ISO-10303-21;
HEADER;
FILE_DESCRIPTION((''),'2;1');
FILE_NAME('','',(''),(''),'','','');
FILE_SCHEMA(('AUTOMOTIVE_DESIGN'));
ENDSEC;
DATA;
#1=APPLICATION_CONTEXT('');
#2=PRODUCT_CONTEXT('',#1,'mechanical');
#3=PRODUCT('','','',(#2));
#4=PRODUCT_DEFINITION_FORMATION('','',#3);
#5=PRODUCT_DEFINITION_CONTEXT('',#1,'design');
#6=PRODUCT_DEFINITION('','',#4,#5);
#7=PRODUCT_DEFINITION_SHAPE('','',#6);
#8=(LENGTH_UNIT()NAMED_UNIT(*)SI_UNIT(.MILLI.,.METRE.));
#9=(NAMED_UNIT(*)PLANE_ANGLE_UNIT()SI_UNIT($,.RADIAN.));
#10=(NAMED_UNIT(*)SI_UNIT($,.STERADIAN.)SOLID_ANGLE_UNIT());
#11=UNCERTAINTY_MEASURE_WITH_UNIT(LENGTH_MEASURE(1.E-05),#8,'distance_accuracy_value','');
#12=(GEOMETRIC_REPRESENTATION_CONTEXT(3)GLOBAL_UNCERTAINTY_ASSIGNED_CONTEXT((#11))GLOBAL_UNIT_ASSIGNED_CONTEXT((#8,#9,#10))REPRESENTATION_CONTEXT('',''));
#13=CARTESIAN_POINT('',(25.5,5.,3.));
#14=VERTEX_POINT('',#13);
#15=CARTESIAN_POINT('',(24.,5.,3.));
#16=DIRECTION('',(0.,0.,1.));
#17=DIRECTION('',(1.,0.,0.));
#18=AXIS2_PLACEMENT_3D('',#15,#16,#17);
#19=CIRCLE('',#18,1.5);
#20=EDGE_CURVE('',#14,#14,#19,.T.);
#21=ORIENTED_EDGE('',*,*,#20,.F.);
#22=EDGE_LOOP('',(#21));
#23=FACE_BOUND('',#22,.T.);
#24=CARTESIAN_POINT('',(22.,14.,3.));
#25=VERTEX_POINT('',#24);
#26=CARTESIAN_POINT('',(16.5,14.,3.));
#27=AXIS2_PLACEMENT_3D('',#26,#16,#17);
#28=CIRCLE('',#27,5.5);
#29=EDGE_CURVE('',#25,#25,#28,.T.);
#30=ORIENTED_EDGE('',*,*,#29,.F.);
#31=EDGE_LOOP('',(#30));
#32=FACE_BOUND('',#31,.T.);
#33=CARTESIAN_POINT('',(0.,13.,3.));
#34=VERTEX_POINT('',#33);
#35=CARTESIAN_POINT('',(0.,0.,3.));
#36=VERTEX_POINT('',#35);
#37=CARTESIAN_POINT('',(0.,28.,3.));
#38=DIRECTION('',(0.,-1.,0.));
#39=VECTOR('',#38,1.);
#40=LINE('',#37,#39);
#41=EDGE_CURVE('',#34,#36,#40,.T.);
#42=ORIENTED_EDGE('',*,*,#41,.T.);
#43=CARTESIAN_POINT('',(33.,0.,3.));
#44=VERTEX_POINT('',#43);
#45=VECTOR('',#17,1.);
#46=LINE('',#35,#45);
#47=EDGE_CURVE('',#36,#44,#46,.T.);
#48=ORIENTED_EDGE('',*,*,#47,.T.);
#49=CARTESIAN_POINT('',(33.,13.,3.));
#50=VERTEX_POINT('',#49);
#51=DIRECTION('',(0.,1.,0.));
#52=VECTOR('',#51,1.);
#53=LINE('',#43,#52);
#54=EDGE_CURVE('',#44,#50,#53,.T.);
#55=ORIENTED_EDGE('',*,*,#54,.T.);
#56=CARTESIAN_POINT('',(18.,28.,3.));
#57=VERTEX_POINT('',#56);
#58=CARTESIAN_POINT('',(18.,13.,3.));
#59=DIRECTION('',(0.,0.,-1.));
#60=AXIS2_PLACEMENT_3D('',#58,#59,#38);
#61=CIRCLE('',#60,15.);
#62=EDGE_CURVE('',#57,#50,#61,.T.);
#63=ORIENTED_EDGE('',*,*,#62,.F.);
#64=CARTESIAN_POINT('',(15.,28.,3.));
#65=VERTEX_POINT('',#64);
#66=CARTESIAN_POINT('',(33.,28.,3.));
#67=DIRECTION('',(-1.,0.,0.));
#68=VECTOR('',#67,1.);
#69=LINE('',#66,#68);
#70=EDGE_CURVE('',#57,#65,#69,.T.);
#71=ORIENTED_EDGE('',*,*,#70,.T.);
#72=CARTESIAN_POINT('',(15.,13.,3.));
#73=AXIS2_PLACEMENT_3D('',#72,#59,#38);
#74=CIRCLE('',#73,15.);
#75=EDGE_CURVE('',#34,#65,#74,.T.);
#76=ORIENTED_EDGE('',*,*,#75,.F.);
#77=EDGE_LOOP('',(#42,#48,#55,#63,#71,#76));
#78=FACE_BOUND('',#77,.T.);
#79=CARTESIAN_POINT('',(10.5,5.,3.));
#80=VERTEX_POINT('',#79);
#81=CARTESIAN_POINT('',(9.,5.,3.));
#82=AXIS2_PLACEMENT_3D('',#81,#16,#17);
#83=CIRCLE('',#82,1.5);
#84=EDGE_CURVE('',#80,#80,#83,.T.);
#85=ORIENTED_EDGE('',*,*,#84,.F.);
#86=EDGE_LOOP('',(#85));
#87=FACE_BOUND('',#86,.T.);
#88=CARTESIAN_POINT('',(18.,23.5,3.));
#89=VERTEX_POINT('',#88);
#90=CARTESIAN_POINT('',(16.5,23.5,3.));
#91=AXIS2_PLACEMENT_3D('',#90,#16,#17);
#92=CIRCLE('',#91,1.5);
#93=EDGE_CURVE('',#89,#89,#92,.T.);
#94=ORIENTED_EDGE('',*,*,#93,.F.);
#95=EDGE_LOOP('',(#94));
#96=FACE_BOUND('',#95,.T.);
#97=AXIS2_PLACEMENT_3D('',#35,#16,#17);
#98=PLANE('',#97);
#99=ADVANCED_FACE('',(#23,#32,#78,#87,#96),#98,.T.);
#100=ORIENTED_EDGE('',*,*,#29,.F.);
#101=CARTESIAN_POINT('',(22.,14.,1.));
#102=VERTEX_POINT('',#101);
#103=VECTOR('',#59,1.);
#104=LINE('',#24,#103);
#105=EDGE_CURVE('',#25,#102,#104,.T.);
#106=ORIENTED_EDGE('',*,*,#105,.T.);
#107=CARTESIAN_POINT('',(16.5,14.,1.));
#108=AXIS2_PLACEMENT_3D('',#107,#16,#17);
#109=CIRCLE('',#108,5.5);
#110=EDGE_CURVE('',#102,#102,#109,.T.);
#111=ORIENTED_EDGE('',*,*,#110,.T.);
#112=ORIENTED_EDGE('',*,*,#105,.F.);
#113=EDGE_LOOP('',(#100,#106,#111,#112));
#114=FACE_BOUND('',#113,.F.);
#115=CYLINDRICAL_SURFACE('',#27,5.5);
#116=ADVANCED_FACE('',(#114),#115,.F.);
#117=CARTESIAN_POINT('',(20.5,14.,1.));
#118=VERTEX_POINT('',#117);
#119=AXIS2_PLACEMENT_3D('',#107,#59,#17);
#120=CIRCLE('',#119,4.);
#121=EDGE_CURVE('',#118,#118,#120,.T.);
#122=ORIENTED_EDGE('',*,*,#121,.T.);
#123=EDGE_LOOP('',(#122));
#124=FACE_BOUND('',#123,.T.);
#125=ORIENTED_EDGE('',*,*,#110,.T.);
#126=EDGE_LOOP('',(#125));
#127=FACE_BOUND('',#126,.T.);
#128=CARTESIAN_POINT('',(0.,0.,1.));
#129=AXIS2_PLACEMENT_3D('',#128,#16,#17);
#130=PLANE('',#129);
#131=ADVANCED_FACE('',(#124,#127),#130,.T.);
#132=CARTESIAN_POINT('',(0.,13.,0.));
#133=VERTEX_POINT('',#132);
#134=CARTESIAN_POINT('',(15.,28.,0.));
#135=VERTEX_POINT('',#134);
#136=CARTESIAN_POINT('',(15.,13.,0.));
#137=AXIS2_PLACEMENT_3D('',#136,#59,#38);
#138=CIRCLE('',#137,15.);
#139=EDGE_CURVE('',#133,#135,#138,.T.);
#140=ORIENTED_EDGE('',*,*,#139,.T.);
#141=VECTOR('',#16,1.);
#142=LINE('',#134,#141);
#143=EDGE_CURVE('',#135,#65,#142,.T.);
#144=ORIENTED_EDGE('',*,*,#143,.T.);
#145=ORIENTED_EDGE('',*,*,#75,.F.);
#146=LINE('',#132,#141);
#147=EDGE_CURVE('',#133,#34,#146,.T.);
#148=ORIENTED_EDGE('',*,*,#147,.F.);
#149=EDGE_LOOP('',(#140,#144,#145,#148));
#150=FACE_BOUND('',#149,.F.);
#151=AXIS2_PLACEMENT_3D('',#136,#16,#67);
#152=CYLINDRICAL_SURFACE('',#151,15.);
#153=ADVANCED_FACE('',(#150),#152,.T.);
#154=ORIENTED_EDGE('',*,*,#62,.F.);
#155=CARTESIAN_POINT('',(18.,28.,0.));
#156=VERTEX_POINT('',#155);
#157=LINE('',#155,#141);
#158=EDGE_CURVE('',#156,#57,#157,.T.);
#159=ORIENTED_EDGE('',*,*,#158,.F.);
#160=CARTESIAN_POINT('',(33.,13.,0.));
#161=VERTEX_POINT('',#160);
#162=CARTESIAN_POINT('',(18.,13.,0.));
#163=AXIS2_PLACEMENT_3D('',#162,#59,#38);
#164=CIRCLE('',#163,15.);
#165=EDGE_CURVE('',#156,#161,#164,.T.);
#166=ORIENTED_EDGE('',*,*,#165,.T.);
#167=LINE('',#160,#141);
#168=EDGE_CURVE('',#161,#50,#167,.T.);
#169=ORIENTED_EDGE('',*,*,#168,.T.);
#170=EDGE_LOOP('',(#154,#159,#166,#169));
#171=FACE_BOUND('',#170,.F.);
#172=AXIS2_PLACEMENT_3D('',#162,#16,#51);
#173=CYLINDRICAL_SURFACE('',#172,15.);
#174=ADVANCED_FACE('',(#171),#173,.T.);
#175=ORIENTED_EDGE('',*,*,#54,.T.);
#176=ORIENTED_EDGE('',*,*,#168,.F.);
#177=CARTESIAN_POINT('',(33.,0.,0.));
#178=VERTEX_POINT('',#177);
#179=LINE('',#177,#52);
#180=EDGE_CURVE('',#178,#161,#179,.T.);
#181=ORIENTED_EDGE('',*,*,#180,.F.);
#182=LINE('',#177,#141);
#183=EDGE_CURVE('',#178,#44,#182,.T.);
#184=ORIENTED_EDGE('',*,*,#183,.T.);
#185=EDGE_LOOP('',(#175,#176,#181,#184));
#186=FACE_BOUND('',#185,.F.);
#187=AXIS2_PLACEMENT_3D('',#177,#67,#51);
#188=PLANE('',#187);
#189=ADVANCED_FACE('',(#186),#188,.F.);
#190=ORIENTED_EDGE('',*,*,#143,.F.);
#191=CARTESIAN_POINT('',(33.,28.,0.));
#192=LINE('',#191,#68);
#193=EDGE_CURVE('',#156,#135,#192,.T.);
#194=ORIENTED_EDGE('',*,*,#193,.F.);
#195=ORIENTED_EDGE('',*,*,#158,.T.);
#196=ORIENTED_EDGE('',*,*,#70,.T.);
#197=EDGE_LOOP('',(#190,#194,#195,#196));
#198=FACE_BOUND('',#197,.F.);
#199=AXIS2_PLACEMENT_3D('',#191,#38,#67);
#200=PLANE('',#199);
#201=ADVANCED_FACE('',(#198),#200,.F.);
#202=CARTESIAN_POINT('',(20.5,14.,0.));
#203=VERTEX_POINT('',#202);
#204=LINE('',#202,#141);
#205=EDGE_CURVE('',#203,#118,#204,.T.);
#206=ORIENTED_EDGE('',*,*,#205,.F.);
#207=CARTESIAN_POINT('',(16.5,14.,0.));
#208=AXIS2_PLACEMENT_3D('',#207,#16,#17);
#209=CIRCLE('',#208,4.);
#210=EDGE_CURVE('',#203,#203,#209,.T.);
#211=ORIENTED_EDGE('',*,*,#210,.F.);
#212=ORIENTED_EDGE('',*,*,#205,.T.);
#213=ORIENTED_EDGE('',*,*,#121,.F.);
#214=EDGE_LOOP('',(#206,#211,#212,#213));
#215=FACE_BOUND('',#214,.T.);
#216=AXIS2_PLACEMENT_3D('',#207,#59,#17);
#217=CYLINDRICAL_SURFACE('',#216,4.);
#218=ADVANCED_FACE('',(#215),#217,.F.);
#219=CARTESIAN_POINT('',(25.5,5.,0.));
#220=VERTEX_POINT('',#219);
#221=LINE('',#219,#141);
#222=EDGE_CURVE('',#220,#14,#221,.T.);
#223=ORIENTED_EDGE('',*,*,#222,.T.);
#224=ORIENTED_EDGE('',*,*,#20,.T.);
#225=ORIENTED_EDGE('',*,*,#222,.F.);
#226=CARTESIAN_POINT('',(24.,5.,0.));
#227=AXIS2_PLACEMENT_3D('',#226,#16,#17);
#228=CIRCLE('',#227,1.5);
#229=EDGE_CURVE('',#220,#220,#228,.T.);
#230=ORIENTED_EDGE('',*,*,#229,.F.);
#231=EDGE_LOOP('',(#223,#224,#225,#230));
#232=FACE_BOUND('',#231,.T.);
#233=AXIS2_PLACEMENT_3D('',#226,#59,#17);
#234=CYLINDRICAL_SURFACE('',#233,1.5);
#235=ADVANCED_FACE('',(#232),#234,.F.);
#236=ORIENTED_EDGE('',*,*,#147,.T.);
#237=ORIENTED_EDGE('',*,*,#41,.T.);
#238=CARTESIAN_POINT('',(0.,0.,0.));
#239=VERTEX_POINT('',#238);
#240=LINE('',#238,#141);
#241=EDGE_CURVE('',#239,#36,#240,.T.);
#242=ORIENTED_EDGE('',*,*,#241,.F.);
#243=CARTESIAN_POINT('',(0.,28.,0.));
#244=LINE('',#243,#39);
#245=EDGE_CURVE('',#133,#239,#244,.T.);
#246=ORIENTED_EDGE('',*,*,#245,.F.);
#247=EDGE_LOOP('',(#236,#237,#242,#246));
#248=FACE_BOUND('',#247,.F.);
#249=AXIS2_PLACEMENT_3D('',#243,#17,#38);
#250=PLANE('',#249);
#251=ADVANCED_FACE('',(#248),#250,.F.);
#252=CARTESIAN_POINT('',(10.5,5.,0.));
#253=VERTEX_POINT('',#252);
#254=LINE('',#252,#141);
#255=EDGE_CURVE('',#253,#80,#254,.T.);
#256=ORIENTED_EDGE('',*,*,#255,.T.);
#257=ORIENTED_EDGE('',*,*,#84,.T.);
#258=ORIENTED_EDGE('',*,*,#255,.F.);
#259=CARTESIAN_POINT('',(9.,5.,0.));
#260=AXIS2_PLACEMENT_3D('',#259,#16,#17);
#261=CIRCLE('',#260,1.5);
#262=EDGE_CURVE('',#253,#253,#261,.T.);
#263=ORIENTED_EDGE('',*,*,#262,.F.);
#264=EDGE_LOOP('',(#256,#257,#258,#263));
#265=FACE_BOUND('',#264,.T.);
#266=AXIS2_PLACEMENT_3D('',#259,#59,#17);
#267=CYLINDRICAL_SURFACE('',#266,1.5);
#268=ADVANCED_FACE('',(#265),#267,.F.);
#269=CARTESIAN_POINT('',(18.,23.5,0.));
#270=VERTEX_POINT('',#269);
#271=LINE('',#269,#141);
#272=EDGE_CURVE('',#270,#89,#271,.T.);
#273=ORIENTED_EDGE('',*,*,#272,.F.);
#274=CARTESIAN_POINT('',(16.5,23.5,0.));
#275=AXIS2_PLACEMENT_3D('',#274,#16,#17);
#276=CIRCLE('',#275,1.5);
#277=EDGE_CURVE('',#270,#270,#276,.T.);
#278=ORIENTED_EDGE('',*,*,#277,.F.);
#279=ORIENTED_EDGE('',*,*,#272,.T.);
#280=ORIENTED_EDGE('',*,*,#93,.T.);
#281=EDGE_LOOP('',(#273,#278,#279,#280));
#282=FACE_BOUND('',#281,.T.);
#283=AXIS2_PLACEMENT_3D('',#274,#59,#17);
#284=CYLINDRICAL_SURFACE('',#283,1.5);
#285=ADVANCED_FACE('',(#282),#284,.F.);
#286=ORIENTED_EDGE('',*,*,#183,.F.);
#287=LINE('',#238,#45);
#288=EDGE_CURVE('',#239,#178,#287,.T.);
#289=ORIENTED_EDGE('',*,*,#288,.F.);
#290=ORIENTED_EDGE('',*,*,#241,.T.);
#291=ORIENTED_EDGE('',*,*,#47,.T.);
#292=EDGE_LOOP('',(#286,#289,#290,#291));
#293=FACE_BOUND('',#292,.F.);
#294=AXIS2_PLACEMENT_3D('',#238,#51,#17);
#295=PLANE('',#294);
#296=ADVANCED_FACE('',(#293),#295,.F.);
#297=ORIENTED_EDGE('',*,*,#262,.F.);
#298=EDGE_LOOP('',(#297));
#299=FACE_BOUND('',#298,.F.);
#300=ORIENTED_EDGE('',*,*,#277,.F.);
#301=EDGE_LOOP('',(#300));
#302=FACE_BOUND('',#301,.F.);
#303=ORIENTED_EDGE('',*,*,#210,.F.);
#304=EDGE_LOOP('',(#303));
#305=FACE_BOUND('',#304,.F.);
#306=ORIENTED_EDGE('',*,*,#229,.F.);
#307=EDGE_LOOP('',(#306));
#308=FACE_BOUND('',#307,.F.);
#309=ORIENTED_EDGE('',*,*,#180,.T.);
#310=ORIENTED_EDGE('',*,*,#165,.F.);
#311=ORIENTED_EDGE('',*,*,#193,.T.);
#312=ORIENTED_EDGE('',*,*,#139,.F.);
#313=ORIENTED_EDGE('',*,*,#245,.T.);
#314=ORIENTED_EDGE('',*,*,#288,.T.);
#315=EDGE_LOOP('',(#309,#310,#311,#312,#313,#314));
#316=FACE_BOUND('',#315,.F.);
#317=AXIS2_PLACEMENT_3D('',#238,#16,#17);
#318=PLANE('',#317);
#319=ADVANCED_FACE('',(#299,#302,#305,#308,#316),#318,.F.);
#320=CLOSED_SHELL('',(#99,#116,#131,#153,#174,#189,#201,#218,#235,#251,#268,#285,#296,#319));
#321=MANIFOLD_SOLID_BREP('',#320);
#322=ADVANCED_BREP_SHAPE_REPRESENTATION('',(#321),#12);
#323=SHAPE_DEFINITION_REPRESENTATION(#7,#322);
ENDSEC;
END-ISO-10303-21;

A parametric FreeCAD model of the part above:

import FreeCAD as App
import Part
import Sketcher
from FreeCAD import Vector
Q = App.Units.Quantity


def edges_at(feature, points):
    """Names of the edges that pass closest to the given points."""
    edges = feature.Shape.Edges
    near = lambda p: min(range(len(edges)), key=lambda i: edges[i].distToShape(Part.Vertex(*p))[0])
    return sorted({f"Edge{near(p) + 1}" for p in points})

doc = App.newDocument("Part")
body = doc.addObject("PartDesign::Body", "Body")

sketch1 = body.newObject("Sketcher::SketchObject", "Sketch")
sketch1.AttachmentSupport = (doc.getObject("XY_Plane"), [""])
sketch1.MapMode = "FlatFace"
sketch1.addGeometry([
    Part.LineSegment(Vector(0, 28, 0), Vector(0, 0, 0)),
    Part.LineSegment(Vector(0, 0, 0), Vector(33, 0, 0)),
    Part.LineSegment(Vector(33, 0, 0), Vector(33, 28, 0)),
    Part.LineSegment(Vector(33, 28, 0), Vector(0, 28, 0)),
    Part.Circle(Vector(9, 5, 0), Vector(0, 0, 1), 1.5),
    Part.Circle(Vector(24, 5, 0), Vector(0, 0, 1), 1.5),
    Part.Circle(Vector(16.5, 14, 0), Vector(0, 0, 1), 4),
    Part.Circle(Vector(16.5, 23.5, 0), Vector(0, 0, 1), 1.5),
], False)
sketch1.addConstraint([
    Sketcher.Constraint("Coincident", 0, 2, 1, 1),
    Sketcher.Constraint("Coincident", 1, 2, 2, 1),
    Sketcher.Constraint("Coincident", 2, 2, 3, 1),
    Sketcher.Constraint("Coincident", 3, 2, 0, 1),
    Sketcher.Constraint("Vertical", 0),
    Sketcher.Constraint("Horizontal", 1),
    Sketcher.Constraint("Vertical", 2),
    Sketcher.Constraint("Horizontal", 3),
    Sketcher.Constraint("Coincident", 0, 2, -1, 1),
    Sketcher.Constraint("Equal", 4, 5),
    Sketcher.Constraint("Equal", 5, 7),
    Sketcher.Constraint("Horizontal", 4, 3, 5, 3),
    Sketcher.Constraint("Vertical", 6, 3, 7, 3),
    Sketcher.Constraint("Diameter", 4, Q("3 mm")),
    Sketcher.Constraint("Diameter", 6, Q("8 mm")),
    Sketcher.Constraint("DistanceX", 1, 1, 1, 2, Q("33 mm")),
    Sketcher.Constraint("DistanceY", 0, 2, 0, 1, Q("28 mm")),
    Sketcher.Constraint("DistanceX", -1, 1, 4, 3, Q("9 mm")),
    Sketcher.Constraint("DistanceY", -1, 1, 4, 3, Q("5 mm")),
    Sketcher.Constraint("DistanceY", -1, 1, 6, 3, Q("14 mm")),
    Sketcher.Constraint("DistanceX", 4, 3, 5, 3, Q("15 mm")),
    Sketcher.Constraint("DistanceX", -1, 1, 6, 3, Q("16.5 mm")),
    Sketcher.Constraint("DistanceY", 7, 3, 2, 2, Q("4.5 mm")),
])
pad1 = body.newObject("PartDesign::Pad", "Pad")
pad1.Profile = sketch1
pad1.Length = 3

sketch2 = body.newObject("Sketcher::SketchObject", "Sketch001")
sketch2.AttachmentSupport = (doc.getObject("XY_Plane"), [""])
sketch2.MapMode = "FlatFace"
sketch2.AttachmentOffset = App.Placement(Vector(0, 0, 3), App.Rotation())
sketch2.addGeometry(Part.Circle(Vector(16, 14, 0), Vector(0, 0, 1), 6), False)
sketch2.addConstraint([
    Sketcher.Constraint("Diameter", 0, Q("11 mm")),
    Sketcher.Constraint("DistanceY", -1, 1, 0, 3, Q("14 mm")),
    Sketcher.Constraint("DistanceX", -1, 1, 0, 3, Q("16.5 mm")),
])
pocket1 = body.newObject("PartDesign::Pocket", "Pocket")
pocket1.Profile = sketch2
pocket1.Length = 2
doc.recompute()

fillet = body.newObject("PartDesign::Fillet", "Fillet")
fillet.Base = (pocket1, edges_at(pocket1, [(33, 28, 1.5), (0, 28, 1.5)]))
fillet.Radius = 15

doc.recompute()
